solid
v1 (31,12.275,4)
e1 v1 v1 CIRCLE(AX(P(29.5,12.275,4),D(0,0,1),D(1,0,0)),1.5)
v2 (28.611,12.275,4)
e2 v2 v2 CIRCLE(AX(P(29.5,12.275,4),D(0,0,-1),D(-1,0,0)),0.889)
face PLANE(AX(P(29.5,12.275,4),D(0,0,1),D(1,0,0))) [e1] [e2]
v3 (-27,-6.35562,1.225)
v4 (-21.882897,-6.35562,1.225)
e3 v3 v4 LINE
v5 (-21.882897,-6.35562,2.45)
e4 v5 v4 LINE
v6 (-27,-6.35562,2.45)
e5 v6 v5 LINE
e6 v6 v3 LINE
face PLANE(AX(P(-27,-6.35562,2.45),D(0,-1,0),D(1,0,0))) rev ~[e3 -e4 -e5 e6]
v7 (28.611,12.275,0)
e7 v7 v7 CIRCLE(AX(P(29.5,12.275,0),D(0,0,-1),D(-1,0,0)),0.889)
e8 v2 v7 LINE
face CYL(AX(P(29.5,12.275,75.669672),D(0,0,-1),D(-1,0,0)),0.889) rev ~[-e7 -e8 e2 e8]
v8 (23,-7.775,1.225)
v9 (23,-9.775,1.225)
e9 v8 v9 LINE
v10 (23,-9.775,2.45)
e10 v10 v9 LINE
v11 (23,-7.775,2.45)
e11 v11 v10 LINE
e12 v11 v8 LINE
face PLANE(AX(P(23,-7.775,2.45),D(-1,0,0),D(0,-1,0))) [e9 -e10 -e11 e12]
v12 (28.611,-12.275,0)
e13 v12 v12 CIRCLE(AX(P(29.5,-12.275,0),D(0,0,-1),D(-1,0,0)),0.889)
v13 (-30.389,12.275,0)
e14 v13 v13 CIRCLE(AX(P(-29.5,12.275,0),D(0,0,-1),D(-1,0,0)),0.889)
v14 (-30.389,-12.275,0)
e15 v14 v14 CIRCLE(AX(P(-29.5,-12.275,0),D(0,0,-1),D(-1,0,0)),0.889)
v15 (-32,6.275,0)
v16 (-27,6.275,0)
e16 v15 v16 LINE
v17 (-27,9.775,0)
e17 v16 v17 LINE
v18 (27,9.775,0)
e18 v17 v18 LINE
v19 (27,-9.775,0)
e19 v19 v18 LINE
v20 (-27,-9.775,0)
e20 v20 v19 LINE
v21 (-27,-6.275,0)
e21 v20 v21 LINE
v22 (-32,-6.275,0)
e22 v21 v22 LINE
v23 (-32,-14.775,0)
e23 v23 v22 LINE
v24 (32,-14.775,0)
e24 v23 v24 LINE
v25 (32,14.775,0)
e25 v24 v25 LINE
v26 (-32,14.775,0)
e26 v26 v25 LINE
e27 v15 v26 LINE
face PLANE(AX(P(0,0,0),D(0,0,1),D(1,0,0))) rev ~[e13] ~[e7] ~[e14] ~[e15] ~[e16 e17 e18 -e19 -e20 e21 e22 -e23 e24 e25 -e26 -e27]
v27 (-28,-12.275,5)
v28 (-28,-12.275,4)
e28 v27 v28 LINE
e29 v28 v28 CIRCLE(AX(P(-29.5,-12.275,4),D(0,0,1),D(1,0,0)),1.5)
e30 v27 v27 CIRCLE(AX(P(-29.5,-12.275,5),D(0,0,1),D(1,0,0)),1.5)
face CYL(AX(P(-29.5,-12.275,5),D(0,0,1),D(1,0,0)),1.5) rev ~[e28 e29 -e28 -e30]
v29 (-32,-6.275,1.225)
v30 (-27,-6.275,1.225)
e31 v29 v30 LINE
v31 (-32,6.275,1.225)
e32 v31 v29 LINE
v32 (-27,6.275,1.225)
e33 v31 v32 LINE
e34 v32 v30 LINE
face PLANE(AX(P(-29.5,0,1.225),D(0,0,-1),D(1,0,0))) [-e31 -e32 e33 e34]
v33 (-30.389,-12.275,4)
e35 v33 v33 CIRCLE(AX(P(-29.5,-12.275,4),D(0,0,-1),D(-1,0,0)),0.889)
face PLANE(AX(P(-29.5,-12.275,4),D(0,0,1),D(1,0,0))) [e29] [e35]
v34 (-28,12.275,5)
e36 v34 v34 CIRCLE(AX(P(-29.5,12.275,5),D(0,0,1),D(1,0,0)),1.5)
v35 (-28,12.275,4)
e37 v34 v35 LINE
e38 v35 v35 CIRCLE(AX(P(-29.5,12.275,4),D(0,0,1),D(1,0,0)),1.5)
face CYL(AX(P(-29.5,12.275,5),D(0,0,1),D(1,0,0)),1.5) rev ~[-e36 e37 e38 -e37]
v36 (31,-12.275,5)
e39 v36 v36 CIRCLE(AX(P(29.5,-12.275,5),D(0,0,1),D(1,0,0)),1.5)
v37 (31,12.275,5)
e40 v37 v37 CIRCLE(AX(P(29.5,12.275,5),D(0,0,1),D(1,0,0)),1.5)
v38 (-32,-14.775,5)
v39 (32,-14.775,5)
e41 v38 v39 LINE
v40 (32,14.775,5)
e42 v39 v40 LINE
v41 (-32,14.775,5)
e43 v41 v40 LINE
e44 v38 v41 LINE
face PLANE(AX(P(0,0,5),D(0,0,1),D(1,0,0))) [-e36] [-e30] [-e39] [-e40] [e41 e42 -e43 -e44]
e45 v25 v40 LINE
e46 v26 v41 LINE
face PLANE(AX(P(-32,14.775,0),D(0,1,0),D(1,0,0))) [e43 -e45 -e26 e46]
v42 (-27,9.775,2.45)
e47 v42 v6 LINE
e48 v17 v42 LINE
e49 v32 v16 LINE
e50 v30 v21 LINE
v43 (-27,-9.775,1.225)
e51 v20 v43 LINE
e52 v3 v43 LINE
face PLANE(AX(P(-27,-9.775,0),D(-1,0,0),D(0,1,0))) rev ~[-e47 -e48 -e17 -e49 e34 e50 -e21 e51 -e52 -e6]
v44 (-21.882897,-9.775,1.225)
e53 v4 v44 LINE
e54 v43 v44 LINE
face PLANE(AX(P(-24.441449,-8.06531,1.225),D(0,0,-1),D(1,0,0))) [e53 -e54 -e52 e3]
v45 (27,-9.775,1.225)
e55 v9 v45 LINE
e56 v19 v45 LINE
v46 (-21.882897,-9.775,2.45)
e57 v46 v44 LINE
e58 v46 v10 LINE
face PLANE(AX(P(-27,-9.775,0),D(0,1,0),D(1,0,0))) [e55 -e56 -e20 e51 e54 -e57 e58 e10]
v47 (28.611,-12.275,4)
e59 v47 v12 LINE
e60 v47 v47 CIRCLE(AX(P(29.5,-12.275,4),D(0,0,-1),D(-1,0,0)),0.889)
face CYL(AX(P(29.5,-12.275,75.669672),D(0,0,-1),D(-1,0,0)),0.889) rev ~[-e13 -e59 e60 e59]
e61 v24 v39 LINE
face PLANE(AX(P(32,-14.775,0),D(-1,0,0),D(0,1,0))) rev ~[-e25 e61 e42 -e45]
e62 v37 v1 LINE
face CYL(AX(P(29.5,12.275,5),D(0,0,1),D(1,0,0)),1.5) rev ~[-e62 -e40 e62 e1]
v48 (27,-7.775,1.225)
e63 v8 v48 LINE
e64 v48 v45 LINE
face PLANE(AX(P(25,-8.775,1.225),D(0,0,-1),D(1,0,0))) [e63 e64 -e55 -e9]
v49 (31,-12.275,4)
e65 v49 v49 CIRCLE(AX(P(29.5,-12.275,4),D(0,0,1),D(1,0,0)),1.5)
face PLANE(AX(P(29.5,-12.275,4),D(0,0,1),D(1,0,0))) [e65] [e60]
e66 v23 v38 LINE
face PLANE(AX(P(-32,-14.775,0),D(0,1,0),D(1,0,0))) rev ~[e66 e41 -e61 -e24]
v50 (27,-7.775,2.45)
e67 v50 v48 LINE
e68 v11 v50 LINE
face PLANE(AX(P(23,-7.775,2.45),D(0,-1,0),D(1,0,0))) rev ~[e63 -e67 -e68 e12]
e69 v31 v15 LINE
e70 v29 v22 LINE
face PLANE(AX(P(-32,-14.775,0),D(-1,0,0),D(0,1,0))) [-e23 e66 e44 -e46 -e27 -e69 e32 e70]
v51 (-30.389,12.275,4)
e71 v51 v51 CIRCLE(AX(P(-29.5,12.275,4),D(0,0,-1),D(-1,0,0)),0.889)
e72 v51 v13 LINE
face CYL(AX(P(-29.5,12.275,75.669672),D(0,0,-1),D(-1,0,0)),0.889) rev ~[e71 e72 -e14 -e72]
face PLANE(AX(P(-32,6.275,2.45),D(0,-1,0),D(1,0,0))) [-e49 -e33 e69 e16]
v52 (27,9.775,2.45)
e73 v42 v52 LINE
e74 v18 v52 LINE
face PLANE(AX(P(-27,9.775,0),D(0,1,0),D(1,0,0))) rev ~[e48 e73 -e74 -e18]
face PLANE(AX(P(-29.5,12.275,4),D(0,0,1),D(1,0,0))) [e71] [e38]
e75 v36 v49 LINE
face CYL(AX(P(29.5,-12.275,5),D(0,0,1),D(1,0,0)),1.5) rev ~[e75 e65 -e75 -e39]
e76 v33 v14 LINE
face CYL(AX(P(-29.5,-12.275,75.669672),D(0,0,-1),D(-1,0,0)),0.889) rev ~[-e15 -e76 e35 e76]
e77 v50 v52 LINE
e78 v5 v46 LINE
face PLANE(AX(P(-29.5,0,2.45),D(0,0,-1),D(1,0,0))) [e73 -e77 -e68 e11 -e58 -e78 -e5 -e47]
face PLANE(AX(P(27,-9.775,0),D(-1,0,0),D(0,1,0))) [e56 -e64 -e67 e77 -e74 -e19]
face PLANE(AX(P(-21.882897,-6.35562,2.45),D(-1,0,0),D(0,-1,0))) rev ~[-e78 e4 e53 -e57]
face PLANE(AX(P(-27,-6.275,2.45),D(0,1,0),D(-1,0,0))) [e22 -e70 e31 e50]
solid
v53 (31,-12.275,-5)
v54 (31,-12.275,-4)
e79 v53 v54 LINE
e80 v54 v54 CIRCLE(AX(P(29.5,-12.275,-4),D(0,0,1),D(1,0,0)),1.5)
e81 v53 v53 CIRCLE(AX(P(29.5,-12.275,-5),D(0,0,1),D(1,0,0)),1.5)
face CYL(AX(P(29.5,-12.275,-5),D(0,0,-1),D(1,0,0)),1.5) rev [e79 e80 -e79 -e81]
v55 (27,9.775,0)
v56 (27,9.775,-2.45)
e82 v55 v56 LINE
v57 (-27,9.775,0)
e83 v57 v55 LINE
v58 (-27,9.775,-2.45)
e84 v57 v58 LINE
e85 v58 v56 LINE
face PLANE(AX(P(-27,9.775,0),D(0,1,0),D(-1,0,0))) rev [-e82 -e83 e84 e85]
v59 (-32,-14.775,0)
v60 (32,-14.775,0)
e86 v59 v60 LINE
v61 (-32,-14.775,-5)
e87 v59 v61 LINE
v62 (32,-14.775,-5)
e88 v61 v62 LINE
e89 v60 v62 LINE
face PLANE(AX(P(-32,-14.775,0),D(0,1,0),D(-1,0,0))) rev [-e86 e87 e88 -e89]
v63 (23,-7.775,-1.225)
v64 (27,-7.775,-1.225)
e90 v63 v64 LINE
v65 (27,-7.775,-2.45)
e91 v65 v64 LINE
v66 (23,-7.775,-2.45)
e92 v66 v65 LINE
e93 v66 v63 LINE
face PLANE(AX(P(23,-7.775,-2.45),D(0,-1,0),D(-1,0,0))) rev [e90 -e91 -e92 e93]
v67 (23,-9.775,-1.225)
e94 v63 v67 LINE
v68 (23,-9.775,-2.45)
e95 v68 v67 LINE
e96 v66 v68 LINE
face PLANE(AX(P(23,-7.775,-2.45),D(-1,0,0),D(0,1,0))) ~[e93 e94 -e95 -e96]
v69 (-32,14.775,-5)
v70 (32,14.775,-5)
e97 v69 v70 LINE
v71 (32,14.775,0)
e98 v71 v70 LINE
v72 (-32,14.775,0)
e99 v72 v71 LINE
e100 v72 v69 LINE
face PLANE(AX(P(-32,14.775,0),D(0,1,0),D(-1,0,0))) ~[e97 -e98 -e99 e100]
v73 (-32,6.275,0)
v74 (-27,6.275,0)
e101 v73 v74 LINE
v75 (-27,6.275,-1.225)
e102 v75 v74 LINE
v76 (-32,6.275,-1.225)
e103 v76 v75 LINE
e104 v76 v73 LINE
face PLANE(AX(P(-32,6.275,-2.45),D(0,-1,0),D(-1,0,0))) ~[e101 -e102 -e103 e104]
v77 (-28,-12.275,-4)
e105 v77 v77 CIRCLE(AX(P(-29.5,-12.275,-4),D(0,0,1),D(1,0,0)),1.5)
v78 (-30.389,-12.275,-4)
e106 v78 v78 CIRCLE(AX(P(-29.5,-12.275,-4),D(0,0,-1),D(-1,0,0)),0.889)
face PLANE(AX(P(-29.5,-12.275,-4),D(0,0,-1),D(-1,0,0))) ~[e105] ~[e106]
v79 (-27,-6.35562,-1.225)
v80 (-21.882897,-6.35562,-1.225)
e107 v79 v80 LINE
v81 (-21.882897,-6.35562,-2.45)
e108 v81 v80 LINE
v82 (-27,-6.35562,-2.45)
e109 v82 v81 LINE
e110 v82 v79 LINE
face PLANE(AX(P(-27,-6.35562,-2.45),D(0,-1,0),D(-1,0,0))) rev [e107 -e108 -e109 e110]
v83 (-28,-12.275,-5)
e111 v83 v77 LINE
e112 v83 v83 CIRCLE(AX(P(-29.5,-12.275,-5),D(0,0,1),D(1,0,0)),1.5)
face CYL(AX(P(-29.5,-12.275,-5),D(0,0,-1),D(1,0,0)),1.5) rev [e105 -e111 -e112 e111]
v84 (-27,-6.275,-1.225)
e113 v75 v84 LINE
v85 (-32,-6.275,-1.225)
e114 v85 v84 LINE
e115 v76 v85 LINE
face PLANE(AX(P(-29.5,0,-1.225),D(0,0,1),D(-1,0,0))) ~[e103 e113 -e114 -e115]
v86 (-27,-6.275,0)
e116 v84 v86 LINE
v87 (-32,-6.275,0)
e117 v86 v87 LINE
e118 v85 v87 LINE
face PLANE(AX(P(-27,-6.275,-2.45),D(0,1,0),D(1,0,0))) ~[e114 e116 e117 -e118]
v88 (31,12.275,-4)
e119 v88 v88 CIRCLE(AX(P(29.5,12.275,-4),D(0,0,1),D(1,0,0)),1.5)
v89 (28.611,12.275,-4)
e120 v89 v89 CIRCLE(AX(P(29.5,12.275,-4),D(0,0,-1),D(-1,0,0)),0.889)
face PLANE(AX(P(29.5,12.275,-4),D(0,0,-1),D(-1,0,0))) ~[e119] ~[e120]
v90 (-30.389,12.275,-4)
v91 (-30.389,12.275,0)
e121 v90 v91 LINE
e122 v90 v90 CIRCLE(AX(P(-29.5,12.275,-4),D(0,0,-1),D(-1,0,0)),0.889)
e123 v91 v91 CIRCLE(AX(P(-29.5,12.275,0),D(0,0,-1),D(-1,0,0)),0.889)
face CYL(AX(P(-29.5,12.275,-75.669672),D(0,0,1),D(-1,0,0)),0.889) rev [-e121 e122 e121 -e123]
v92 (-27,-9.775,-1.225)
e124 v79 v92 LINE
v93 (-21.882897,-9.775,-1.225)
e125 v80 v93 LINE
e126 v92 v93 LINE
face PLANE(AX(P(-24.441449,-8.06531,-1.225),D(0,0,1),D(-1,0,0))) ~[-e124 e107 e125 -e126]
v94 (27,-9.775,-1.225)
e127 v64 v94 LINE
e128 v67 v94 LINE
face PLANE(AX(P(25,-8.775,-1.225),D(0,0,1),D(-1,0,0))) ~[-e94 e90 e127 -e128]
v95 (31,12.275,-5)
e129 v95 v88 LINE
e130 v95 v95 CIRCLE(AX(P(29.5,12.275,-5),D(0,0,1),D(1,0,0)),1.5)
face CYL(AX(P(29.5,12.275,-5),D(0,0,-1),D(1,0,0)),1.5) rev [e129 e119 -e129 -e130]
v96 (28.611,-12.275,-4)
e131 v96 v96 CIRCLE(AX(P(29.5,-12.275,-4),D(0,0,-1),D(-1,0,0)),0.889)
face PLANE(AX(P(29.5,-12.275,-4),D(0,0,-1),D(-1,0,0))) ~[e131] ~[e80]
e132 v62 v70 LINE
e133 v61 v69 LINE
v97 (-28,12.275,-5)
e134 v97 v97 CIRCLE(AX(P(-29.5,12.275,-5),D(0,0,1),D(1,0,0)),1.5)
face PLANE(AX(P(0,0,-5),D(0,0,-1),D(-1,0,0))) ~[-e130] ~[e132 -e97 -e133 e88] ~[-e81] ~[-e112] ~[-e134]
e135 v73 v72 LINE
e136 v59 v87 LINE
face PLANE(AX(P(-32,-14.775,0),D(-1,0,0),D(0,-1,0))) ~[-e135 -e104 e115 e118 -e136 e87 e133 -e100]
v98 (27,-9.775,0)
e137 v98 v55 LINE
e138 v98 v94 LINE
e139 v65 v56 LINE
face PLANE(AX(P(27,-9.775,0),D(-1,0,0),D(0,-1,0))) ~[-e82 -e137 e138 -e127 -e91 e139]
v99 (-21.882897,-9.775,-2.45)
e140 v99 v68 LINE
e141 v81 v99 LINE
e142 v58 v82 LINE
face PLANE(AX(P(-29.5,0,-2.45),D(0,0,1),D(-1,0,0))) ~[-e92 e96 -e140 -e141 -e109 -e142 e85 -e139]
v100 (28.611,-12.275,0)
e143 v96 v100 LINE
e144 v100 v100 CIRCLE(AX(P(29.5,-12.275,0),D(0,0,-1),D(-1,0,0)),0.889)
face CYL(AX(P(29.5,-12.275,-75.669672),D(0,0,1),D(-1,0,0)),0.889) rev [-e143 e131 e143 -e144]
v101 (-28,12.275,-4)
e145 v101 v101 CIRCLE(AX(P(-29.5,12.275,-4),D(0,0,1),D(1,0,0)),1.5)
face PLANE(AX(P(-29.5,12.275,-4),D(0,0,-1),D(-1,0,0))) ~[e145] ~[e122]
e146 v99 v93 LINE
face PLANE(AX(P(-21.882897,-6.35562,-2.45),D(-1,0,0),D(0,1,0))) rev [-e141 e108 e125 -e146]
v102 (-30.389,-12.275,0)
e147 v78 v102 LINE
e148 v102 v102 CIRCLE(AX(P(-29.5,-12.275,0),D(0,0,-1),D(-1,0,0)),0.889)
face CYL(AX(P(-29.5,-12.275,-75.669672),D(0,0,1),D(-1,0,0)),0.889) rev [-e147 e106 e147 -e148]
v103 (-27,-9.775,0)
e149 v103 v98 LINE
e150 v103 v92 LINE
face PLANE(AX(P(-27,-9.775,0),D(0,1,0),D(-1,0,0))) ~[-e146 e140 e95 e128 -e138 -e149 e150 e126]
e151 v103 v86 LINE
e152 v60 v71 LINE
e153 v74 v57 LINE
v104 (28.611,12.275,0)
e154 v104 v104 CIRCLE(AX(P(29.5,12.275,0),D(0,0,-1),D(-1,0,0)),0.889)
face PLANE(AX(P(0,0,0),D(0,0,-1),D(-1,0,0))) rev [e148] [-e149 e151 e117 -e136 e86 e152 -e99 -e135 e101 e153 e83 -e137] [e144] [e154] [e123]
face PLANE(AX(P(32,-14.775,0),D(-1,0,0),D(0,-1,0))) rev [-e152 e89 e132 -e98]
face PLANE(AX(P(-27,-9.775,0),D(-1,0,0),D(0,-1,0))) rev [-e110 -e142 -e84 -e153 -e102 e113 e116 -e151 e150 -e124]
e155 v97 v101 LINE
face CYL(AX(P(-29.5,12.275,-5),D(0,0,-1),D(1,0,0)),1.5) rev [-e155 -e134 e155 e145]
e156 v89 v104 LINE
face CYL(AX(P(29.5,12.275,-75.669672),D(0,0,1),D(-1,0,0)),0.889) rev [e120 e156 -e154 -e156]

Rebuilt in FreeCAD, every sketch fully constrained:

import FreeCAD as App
import Part
import Sketcher


def add_polygon(sketch, points):
    """Adds a closed chain of lines whose ends are joined by coincident constraints."""
    first, n = sketch.GeometryCount, len(points)
    for a, b in zip(points, points[1:] + points[:1]):
        sketch.addGeometry(Part.LineSegment(App.Vector(*a, 0), App.Vector(*b, 0)), False)
    for i in range(n):
        sketch.addConstraint(Sketcher.Constraint("Coincident", first + i, 2, first + (i + 1) % n, 1))

doc = App.newDocument("Part")
body = doc.addObject("PartDesign::Body", "Body")

# Sketch on XY plane
sketch1 = body.newObject("Sketcher::SketchObject", "Sketch")
sketch1.AttachmentSupport = (doc.getObject("XY_Plane"), [""])
sketch1.MapMode = "FlatFace"
add_polygon(sketch1, [(-32, 15), (-32, -15), (32, -15), (32, 15)])  # lines 0-3
sketch1.addConstraint([
    Sketcher.Constraint("Vertical", 0),
    Sketcher.Constraint("Horizontal", 1),
    Sketcher.Constraint("Vertical", 2),
    Sketcher.Constraint("Horizontal", 3),
    Sketcher.Constraint("Symmetric", 0, 2, 2, 2, -1, 1),
    Sketcher.Constraint("DistanceX", 1, 1, 1, 2, 64.0),
    Sketcher.Constraint("DistanceY", 0, 2, 0, 1, 29.55),
])
pad1 = body.newObject("PartDesign::Pad", "Pad")
pad1.Profile = sketch1
pad1.Length = 5

# Sketch on XY plane
sketch2 = body.newObject("Sketcher::SketchObject", "Sketch001")
sketch2.AttachmentSupport = (doc.getObject("XY_Plane"), [""])
sketch2.MapMode = "FlatFace"
add_polygon(sketch2, [(-27, 10), (-27, -10), (27, -10), (27, 10)])  # lines 0-3
sketch2.addConstraint([
    Sketcher.Constraint("Vertical", 0),
    Sketcher.Constraint("Horizontal", 1),
    Sketcher.Constraint("Vertical", 2),
    Sketcher.Constraint("Horizontal", 3),
    Sketcher.Constraint("Symmetric", 0, 2, 2, 2, -1, 1),
    Sketcher.Constraint("DistanceX", 1, 1, 1, 2, 54.0),
    Sketcher.Constraint("DistanceY", 0, 2, 0, 1, 19.55),
])
pocket1 = body.newObject("PartDesign::Pocket", "Pocket")
pocket1.Profile = sketch2
pocket1.Length = 2.45
pocket1.Reversed = True

# Sketch on XY plane
sketch3 = body.newObject("Sketcher::SketchObject", "Sketch002")
sketch3.AttachmentSupport = (doc.getObject("XY_Plane"), [""])
sketch3.MapMode = "FlatFace"
sketch3.AttachmentOffset = App.Placement(App.Vector(0, 0, 2.45), App.Rotation())
add_polygon(sketch3, [(-27, -6), (-32, -6), (-32, 6), (-27, 6)])  # lines 0-3
sketch3.addConstraint([
    Sketcher.Constraint("Horizontal", 0),
    Sketcher.Constraint("Vertical", 1),
    Sketcher.Constraint("Horizontal", 2),
    Sketcher.Constraint("Vertical", 3),
    Sketcher.Constraint("DistanceX", 0, 2, 0, 1, 5.0),
    Sketcher.Constraint("DistanceX", 0, 2, -1, 1, 32.0),
    Sketcher.Constraint("DistanceY", 1, 1, 1, 2, 12.55),
    Sketcher.Constraint("DistanceY", 0, 2, -1, 1, 6.275),
])
pocket2 = body.newObject("PartDesign::Pocket", "Pocket001")
pocket2.Profile = sketch3
pocket2.Type = "ThroughAll"

# Sketch on XY plane
sketch4 = body.newObject("Sketcher::SketchObject", "Sketch003")
sketch4.AttachmentSupport = (doc.getObject("XY_Plane"), [""])
sketch4.MapMode = "FlatFace"
sketch4.AttachmentOffset = App.Placement(App.Vector(0, 0, 5), App.Rotation())
sketch4.addGeometry([
    Part.Circle(App.Vector(-29.5, -12.3, 0), App.Vector(0, 0, 1), 1.5),
    Part.Circle(App.Vector(-29.5, 12.3, 0), App.Vector(0, 0, 1), 1.5),
    Part.Circle(App.Vector(29.5, 12.3, 0), App.Vector(0, 0, 1), 1.5),
    Part.Circle(App.Vector(29.5, -12.3, 0), App.Vector(0, 0, 1), 1.5),
], False)
sketch4.addConstraint([
    Sketcher.Constraint("Equal", 0, 1),
    Sketcher.Constraint("Equal", 1, 2),
    Sketcher.Constraint("Equal", 2, 3),
    Sketcher.Constraint("Symmetric", 0, 3, 2, 3, -1, 1),
    Sketcher.Constraint("Symmetric", 1, 3, 3, 3, -1, 1),
    Sketcher.Constraint("Symmetric", 1, 3, 2, 3, -2),
    Sketcher.Constraint("Diameter", 0, 3.0),
    Sketcher.Constraint("DistanceX", 1, 3, 2, 3, 59.0),
    Sketcher.Constraint("DistanceY", 0, 3, 1, 3, 24.55),
])
pocket3 = body.newObject("PartDesign::Pocket", "Pocket002")
pocket3.Profile = sketch4
pocket3.Length = 1

# Sketch on XY plane
sketch5 = body.newObject("Sketcher::SketchObject", "Sketch004")
sketch5.AttachmentSupport = (doc.getObject("XY_Plane"), [""])
sketch5.MapMode = "FlatFace"
sketch5.AttachmentOffset = App.Placement(App.Vector(0, 0, 5), App.Rotation())
sketch5.addGeometry([
    Part.Circle(App.Vector(-29.5, 12.3, 0), App.Vector(0, 0, 1), 0.9),
    Part.Circle(App.Vector(-29.5, -12.3, 0), App.Vector(0, 0, 1), 0.9),
    Part.Circle(App.Vector(29.5, 12.3, 0), App.Vector(0, 0, 1), 0.9),
    Part.Circle(App.Vector(29.5, -12.3, 0), App.Vector(0, 0, 1), 0.9),
], False)
sketch5.addConstraint([
    Sketcher.Constraint("Equal", 0, 1),
    Sketcher.Constraint("Equal", 1, 2),
    Sketcher.Constraint("Equal", 2, 3),
    Sketcher.Constraint("Symmetric", 1, 3, 2, 3, -1, 1),
    Sketcher.Constraint("Symmetric", 0, 3, 3, 3, -1, 1),
    Sketcher.Constraint("Symmetric", 0, 3, 2, 3, -2),
    Sketcher.Constraint("Diameter", 0, 1.778),
    Sketcher.Constraint("DistanceX", 0, 3, 2, 3, 59.0),
    Sketcher.Constraint("DistanceY", 1, 3, 0, 3, 24.55),
])
doc.recompute()
hole = body.newObject("PartDesign::Hole", "Hole")
hole.Profile = sketch5
hole.ThreadType = "None"
hole.Diameter = 1.778
hole.DepthType = "ThroughAll"

# Sketch on XY plane
sketch6 = body.newObject("Sketcher::SketchObject", "Sketch005")
sketch6.AttachmentSupport = (doc.getObject("XY_Plane"), [""])
sketch6.MapMode = "FlatFace"
sketch6.AttachmentOffset = App.Placement(App.Vector(0, 0, 2.45), App.Rotation())
add_polygon(sketch6, [(-27, -9.8), (-27, -6.4), (-21.9, -6.4), (-21.9, -9.8)])  # lines 0-3
add_polygon(sketch6, [(-32, -6.3), (-32, 6.3), (-27, 6.3), (-27, -6.3)])  # lines 4-7
add_polygon(sketch6, [(23, -9.8), (23, -7.8), (27, -7.8), (27, -9.8)])  # lines 8-11
sketch6.addConstraint([
    Sketcher.Constraint("Vertical", 0),
    Sketcher.Constraint("Horizontal", 1),
    Sketcher.Constraint("Vertical", 2),
    Sketcher.Constraint("Horizontal", 3),
    Sketcher.Constraint("Vertical", 4),
    Sketcher.Constraint("Horizontal", 5),
    Sketcher.Constraint("Vertical", 6),
    Sketcher.Constraint("Horizontal", 7),
    Sketcher.Constraint("Vertical", 8),
    Sketcher.Constraint("Horizontal", 9),
    Sketcher.Constraint("Vertical", 10),
    Sketcher.Constraint("Horizontal", 11),
    Sketcher.Constraint("Symmetric", 3, 2, 10, 2, -2),
    Sketcher.Constraint("Vertical", 3, 2, 5, 2),
    Sketcher.Constraint("DistanceX", 5, 1, 5, 2, 5.0),
    Sketcher.Constraint("DistanceX", 9, 1, 9, 2, 4.0),
    Sketcher.Constraint("DistanceY", 8, 1, 8, 2, 2.0),
    Sketcher.Constraint("DistanceX", 0, 2, -1, 1, 27.0),
    Sketcher.Constraint("DistanceY", 4, 1, 4, 2, 12.55),
    Sketcher.Constraint("DistanceY", 3, 2, 6, 2, 3.5),
    Sketcher.Constraint("DistanceY", 2, 2, -1, 1, 9.775),
    Sketcher.Constraint("DistanceY", 0, 1, 0, 2, 3.41938),
    Sketcher.Constraint("DistanceX", 1, 1, 1, 2, 5.117103),
])
pad2 = body.newObject("PartDesign::Pad", "Pad001")
pad2.Profile = sketch6
pad2.Length = 1.225
pad2.Reversed = True
body2 = doc.addObject("PartDesign::Body", "Body001")
doc.recompute()

mirroring = doc.addObject("Part::Mirroring", "Mirroring")
mirroring.Source = body
mirroring.Base = App.Vector(0, 0, 0)
mirroring.Normal = App.Vector(0, 0, 1)
body2.BaseFeature = mirroring
doc.recompute()
mirroring.Visibility = False

doc.recompute()
